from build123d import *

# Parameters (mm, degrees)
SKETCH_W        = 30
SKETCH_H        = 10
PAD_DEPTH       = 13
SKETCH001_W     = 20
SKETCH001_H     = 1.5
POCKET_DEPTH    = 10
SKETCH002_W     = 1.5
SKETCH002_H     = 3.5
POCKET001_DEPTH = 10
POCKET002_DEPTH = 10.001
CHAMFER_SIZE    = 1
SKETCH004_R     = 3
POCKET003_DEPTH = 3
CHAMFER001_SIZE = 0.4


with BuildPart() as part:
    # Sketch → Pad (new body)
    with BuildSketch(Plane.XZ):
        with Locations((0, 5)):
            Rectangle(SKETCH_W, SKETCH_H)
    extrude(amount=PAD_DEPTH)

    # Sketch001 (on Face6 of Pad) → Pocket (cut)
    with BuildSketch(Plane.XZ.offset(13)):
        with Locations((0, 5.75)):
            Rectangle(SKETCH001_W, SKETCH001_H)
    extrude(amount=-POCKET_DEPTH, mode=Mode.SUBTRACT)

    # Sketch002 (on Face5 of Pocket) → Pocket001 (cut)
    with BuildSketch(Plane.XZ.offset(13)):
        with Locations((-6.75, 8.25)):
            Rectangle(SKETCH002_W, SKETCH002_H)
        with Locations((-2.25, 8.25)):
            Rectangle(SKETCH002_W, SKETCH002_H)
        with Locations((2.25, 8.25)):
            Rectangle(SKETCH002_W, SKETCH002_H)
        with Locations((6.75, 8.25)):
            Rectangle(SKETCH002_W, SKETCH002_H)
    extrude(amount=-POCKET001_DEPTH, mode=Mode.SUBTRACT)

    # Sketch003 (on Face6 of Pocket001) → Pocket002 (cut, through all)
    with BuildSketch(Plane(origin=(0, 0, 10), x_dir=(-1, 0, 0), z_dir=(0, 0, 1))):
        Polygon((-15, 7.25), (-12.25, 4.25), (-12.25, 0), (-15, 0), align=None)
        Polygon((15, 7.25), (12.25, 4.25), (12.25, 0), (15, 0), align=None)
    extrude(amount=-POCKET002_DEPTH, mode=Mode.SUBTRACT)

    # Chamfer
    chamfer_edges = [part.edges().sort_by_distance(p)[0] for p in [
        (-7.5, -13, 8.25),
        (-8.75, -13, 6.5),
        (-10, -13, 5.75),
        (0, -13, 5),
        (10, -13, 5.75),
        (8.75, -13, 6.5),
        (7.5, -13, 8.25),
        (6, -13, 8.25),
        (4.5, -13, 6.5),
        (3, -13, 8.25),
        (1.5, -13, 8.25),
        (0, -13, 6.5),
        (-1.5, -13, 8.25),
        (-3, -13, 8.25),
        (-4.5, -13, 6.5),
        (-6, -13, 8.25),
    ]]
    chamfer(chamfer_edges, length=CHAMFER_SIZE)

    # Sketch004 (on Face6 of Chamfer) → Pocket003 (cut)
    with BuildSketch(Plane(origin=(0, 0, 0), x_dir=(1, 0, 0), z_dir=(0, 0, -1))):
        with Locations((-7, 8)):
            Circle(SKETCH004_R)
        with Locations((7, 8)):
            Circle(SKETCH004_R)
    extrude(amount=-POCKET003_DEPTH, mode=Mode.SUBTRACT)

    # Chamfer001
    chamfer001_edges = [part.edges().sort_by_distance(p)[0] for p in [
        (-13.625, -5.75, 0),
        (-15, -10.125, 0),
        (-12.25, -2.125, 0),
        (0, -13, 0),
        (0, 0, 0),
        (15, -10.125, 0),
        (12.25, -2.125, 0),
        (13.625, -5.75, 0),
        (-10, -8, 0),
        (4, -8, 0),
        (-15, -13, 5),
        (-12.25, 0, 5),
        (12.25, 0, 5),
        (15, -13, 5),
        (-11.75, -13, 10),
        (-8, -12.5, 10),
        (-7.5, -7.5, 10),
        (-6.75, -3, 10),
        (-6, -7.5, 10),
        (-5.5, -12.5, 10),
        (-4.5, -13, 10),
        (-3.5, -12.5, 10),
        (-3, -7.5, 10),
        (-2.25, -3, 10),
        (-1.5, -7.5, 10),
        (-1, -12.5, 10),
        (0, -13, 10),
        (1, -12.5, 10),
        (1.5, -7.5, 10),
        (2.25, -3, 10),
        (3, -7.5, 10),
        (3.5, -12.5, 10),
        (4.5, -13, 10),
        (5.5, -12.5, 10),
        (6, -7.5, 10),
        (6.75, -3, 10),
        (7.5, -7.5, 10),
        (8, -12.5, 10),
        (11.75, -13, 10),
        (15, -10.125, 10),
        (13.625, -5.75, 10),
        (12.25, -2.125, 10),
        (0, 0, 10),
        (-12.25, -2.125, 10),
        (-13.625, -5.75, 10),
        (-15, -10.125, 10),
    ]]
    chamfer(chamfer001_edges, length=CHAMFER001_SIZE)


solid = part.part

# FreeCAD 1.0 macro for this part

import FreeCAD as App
import Part
import Sketcher


def edges_at(feature, points):
    """Names of the edges that pass closest to the given points."""
    edges = feature.Shape.Edges
    near = lambda p: min(range(len(edges)), key=lambda i: edges[i].distToShape(Part.Vertex(*p))[0])
    return sorted({f"Edge{near(p) + 1}" for p in points})

doc = App.newDocument("Part")
params = doc.addObject("Spreadsheet::Sheet", "Params")
for row, (alias, value) in enumerate([
    ("sketch1_width", "30 mm"),
    ("sketch1_height", "10 mm"),
    ("pad1_length", "13 mm"),
    ("sketch2_width", "20 mm"),
    ("sketch2_height", "1.5 mm"),
    ("pocket1_length", "10 mm"),
    ("sketch3_width", "1.5 mm"),
    ("sketch3_height", "3.5 mm"),
    ("pocket2_length", "10 mm"),
    ("sketch4_width", "2.75 mm"),
    ("sketch4_height", "7.25 mm"),
    ("chamfer_size", "1 mm"),
    ("sketch5_diameter", "6 mm"),
    ("pocket4_length", "3 mm"),
    ("chamfer2_size", "0.4 mm"),
], start=1):
    params.set(f"A{row}", alias)
    params.set(f"B{row}", "=" + value)
    params.setAlias(f"B{row}", alias)

body = doc.addObject("PartDesign::Body", "Body")

sketch1 = body.newObject("Sketcher::SketchObject", "Sketch")
sketch1.AttachmentSupport = (doc.getObject("XZ_Plane"), [""])
sketch1.MapMode = "FlatFace"
sketch1.addGeometry([
    Part.LineSegment(App.Vector(-15, 10, 0), App.Vector(-15, 0, 0)),
    Part.LineSegment(App.Vector(-15, 0, 0), App.Vector(15, 0, 0)),
    Part.LineSegment(App.Vector(15, 0, 0), App.Vector(15, 10, 0)),
    Part.LineSegment(App.Vector(15, 10, 0), App.Vector(-15, 10, 0)),
], False)
sketch1.addConstraint([
    Sketcher.Constraint("Coincident", 0, 2, 1, 1),
    Sketcher.Constraint("Coincident", 1, 2, 2, 1),
    Sketcher.Constraint("Coincident", 2, 2, 3, 1),
    Sketcher.Constraint("Coincident", 3, 2, 0, 1),
    Sketcher.Constraint("Vertical", 0),
    Sketcher.Constraint("Horizontal", 1),
    Sketcher.Constraint("Vertical", 2),
    Sketcher.Constraint("Horizontal", 3),
    Sketcher.Constraint("Symmetric", 0, 2, 1, 2, -1, 1),
    Sketcher.Constraint("DistanceX", 1, 1, 1, 2, 30.0),
    Sketcher.Constraint("DistanceY", 0, 2, 0, 1, 10.0),
])
sketch1.setExpression("Constraints[9]", "Params.sketch1_width")
sketch1.setExpression("Constraints[10]", "Params.sketch1_height")
pad1 = body.newObject("PartDesign::Pad", "Pad")
pad1.Profile = sketch1
pad1.setExpression("Length", "Params.pad1_length")

sketch2 = body.newObject("Sketcher::SketchObject", "Sketch001")
sketch2.AttachmentSupport = (doc.getObject("XZ_Plane"), [""])
sketch2.MapMode = "FlatFace"
sketch2.AttachmentOffset = App.Placement(App.Vector(0, 0, 13), App.Rotation())
sketch2.addGeometry([
    Part.LineSegment(App.Vector(-10, 6.5, 0), App.Vector(-10, 5, 0)),
    Part.LineSegment(App.Vector(-10, 5, 0), App.Vector(10, 5, 0)),
    Part.LineSegment(App.Vector(10, 5, 0), App.Vector(10, 6.5, 0)),
    Part.LineSegment(App.Vector(10, 6.5, 0), App.Vector(-10, 6.5, 0)),
], False)
sketch2.addConstraint([
    Sketcher.Constraint("Coincident", 0, 2, 1, 1),
    Sketcher.Constraint("Coincident", 1, 2, 2, 1),
    Sketcher.Constraint("Coincident", 2, 2, 3, 1),
    Sketcher.Constraint("Coincident", 3, 2, 0, 1),
    Sketcher.Constraint("Vertical", 0),
    Sketcher.Constraint("Horizontal", 1),
    Sketcher.Constraint("Vertical", 2),
    Sketcher.Constraint("Horizontal", 3),
    Sketcher.Constraint("DistanceX", 1, 1, 1, 2, 20.0),
    Sketcher.Constraint("DistanceY", 0, 2, 0, 1, 1.5),
    Sketcher.Constraint("DistanceX", 0, 2, -1, 1, 10.0),
    Sketcher.Constraint("DistanceY", -1, 1, 0, 2, 5.0),
])
sketch2.setExpression("Constraints[8]", "Params.sketch2_width")
sketch2.setExpression("Constraints[9]", "Params.sketch2_height")
pocket1 = body.newObject("PartDesign::Pocket", "Pocket")
pocket1.Profile = sketch2
pocket1.setExpression("Length", "Params.pocket1_length")

sketch3 = body.newObject("Sketcher::SketchObject", "Sketch002")
sketch3.AttachmentSupport = (doc.getObject("XZ_Plane"), [""])
sketch3.MapMode = "FlatFace"
sketch3.AttachmentOffset = App.Placement(App.Vector(0, 0, 13), App.Rotation())
sketch3.addGeometry([
    Part.LineSegment(App.Vector(-7.5, 10, 0), App.Vector(-7.5, 6.5, 0)),
    Part.LineSegment(App.Vector(-7.5, 6.5, 0), App.Vector(-6, 6.5, 0)),
    Part.LineSegment(App.Vector(-6, 6.5, 0), App.Vector(-6, 10, 0)),
    Part.LineSegment(App.Vector(-6, 10, 0), App.Vector(-7.5, 10, 0)),
    Part.LineSegment(App.Vector(-3, 10, 0), App.Vector(-3, 6.5, 0)),
    Part.LineSegment(App.Vector(-3, 6.5, 0), App.Vector(-1.5, 6.5, 0)),
    Part.LineSegment(App.Vector(-1.5, 6.5, 0), App.Vector(-1.5, 10, 0)),
    Part.LineSegment(App.Vector(-1.5, 10, 0), App.Vector(-3, 10, 0)),
    Part.LineSegment(App.Vector(1.5, 10, 0), App.Vector(1.5, 6.5, 0)),
    Part.LineSegment(App.Vector(1.5, 6.5, 0), App.Vector(3, 6.5, 0)),
    Part.LineSegment(App.Vector(3, 6.5, 0), App.Vector(3, 10, 0)),
    Part.LineSegment(App.Vector(3, 10, 0), App.Vector(1.5, 10, 0)),
    Part.LineSegment(App.Vector(6, 10, 0), App.Vector(6, 6.5, 0)),
    Part.LineSegment(App.Vector(6, 6.5, 0), App.Vector(7.5, 6.5, 0)),
    Part.LineSegment(App.Vector(7.5, 6.5, 0), App.Vector(7.5, 10, 0)),
    Part.LineSegment(App.Vector(7.5, 10, 0), App.Vector(6, 10, 0)),
], False)
sketch3.addConstraint([
    Sketcher.Constraint("Coincident", 0, 2, 1, 1),
    Sketcher.Constraint("Coincident", 1, 2, 2, 1),
    Sketcher.Constraint("Coincident", 2, 2, 3, 1),
    Sketcher.Constraint("Coincident", 3, 2, 0, 1),
    Sketcher.Constraint("Coincident", 4, 2, 5, 1),
    Sketcher.Constraint("Coincident", 5, 2, 6, 1),
    Sketcher.Constraint("Coincident", 6, 2, 7, 1),
    Sketcher.Constraint("Coincident", 7, 2, 4, 1),
    Sketcher.Constraint("Coincident", 8, 2, 9, 1),
    Sketcher.Constraint("Coincident", 9, 2, 10, 1),
    Sketcher.Constraint("Coincident", 10, 2, 11, 1),
    Sketcher.Constraint("Coincident", 11, 2, 8, 1),
    Sketcher.Constraint("Coincident", 12, 2, 13, 1),
    Sketcher.Constraint("Coincident", 13, 2, 14, 1),
    Sketcher.Constraint("Coincident", 14, 2, 15, 1),
    Sketcher.Constraint("Coincident", 15, 2, 12, 1),
    Sketcher.Constraint("Vertical", 0),
    Sketcher.Constraint("Horizontal", 1),
    Sketcher.Constraint("Vertical", 2),
    Sketcher.Constraint("Horizontal", 3),
    Sketcher.Constraint("Vertical", 4),
    Sketcher.Constraint("Horizontal", 5),
    Sketcher.Constraint("Vertical", 6),
    Sketcher.Constraint("Horizontal", 7),
    Sketcher.Constraint("Vertical", 8),
    Sketcher.Constraint("Horizontal", 9),
    Sketcher.Constraint("Vertical", 10),
    Sketcher.Constraint("Horizontal", 11),
    Sketcher.Constraint("Vertical", 12),
    Sketcher.Constraint("Horizontal", 13),
    Sketcher.Constraint("Vertical", 14),
    Sketcher.Constraint("Horizontal", 15),
    Sketcher.Constraint("Symmetric", 5, 2, 8, 2, -2),
    Sketcher.Constraint("Symmetric", 7, 2, 10, 2, -2),
    Sketcher.Constraint("Symmetric", 1, 2, 12, 2, -2),
    Sketcher.Constraint("Symmetric", 3, 2, 14, 2, -2),
    Sketcher.Constraint("Horizontal", 1, 2, 4, 2),
    Sketcher.Constraint("Horizontal", 3, 2, 6, 2),
    Sketcher.Constraint("Equal", 3, 5),
    Sketcher.Constraint("DistanceX", 1, 1, 1, 2, 1.5),
    Sketcher.Constraint("DistanceY", 0, 2, 0, 1, 3.5),
    Sketcher.Constraint("DistanceX", 1, 2, -1, 1, 6.0),
    Sketcher.Constraint("DistanceY", -1, 1, 2, 2, 10.0),
    Sketcher.Constraint("DistanceX", 4, 2, -1, 1, 3.0),
])
sketch3.setExpression("Constraints[39]", "Params.sketch3_width")
sketch3.setExpression("Constraints[40]", "Params.sketch3_height")
pocket2 = body.newObject("PartDesign::Pocket", "Pocket001")
pocket2.Profile = sketch3
pocket2.setExpression("Length", "Params.pocket2_length")

sketch4 = body.newObject("Sketcher::SketchObject", "Sketch003")
sketch4.AttachmentSupport = (doc.getObject("XY_Plane"), [""])
sketch4.MapMode = "FlatFace"
sketch4.AttachmentOffset = App.Placement(App.Vector(0, 0, 10), App.Rotation())
sketch4.addGeometry([
    Part.LineSegment(App.Vector(12.2, -4.2, 0), App.Vector(15, -7.2, 0)),
    Part.LineSegment(App.Vector(15, -7.2, 0), App.Vector(15, 0, 0)),
    Part.LineSegment(App.Vector(15, 0, 0), App.Vector(12.2, 0, 0)),
    Part.LineSegment(App.Vector(12.2, 0, 0), App.Vector(12.2, -4.2, 0)),
    Part.LineSegment(App.Vector(-15, -7.2, 0), App.Vector(-12.2, -4.2, 0)),
    Part.LineSegment(App.Vector(-12.2, -4.2, 0), App.Vector(-12.2, 0, 0)),
    Part.LineSegment(App.Vector(-12.2, 0, 0), App.Vector(-15, 0, 0)),
    Part.LineSegment(App.Vector(-15, 0, 0), App.Vector(-15, -7.2, 0)),
], False)
sketch4.addConstraint([
    Sketcher.Constraint("Coincident", 0, 2, 1, 1),
    Sketcher.Constraint("Coincident", 1, 2, 2, 1),
    Sketcher.Constraint("Coincident", 2, 2, 3, 1),
    Sketcher.Constraint("Coincident", 3, 2, 0, 1),
    Sketcher.Constraint("Coincident", 4, 2, 5, 1),
    Sketcher.Constraint("Coincident", 5, 2, 6, 1),
    Sketcher.Constraint("Coincident", 6, 2, 7, 1),
    Sketcher.Constraint("Coincident", 7, 2, 4, 1),
    Sketcher.Constraint("Vertical", 1),
    Sketcher.Constraint("Horizontal", 2),
    Sketcher.Constraint("Vertical", 3),
    Sketcher.Constraint("Vertical", 5),
    Sketcher.Constraint("Horizontal", 6),
    Sketcher.Constraint("Vertical", 7),
    Sketcher.Constraint("Symmetric", 2, 2, 5, 2, -1, 1),
    Sketcher.Constraint("Symmetric", 1, 2, 6, 2, -2),
    Sketcher.Constraint("Horizontal", 3, 2, 4, 2),
    Sketcher.Constraint("Horizontal", 0, 2, 7, 2),
    Sketcher.Constraint("DistanceX", -1, 1, 0, 2, 15.0),
    Sketcher.Constraint("DistanceY", 0, 2, 3, 2, 3.0),
    Sketcher.Constraint("DistanceX", 2, 2, 2, 1, 2.75),
    Sketcher.Constraint("DistanceY", 1, 1, 1, 2, 7.25),
])
sketch4.setExpression("Constraints[20]", "Params.sketch4_width")
sketch4.setExpression("Constraints[21]", "Params.sketch4_height")
pocket3 = body.newObject("PartDesign::Pocket", "Pocket002")
pocket3.Profile = sketch4
pocket3.Type = "ThroughAll"
doc.recompute()

chamfer = body.newObject("PartDesign::Chamfer", "Chamfer")
chamfer.Base = (pocket3, edges_at(pocket3, [
    (-7.5, -13, 8.25),
    (-8.75, -13, 6.5),
    (-10, -13, 5.75),
    (0, -13, 5),
    (10, -13, 5.75),
    (8.75, -13, 6.5),
    (7.5, -13, 8.25),
    (6, -13, 8.25),
    (4.5, -13, 6.5),
    (3, -13, 8.25),
    (1.5, -13, 8.25),
    (0, -13, 6.5),
    (-1.5, -13, 8.25),
    (-3, -13, 8.25),
    (-4.5, -13, 6.5),
    (-6, -13, 8.25),
]))
chamfer.setExpression("Size", "Params.chamfer_size")

sketch5 = body.newObject("Sketcher::SketchObject", "Sketch004")
sketch5.AttachmentSupport = (doc.getObject("XY_Plane"), [""])
sketch5.MapMode = "FlatFace"
sketch5.addGeometry([
    Part.Circle(App.Vector(-7, -8, 0), App.Vector(0, 0, 1), 3),
    Part.Circle(App.Vector(7, -8, 0), App.Vector(0, 0, 1), 3),
], False)
sketch5.addConstraint([
    Sketcher.Constraint("Equal", 0, 1),
    Sketcher.Constraint("Symmetric", 0, 3, 1, 3, -2),
    Sketcher.Constraint("Diameter", 0, 6.0),
    Sketcher.Constraint("DistanceX", 0, 3, -1, 1, 7.0),
    Sketcher.Constraint("DistanceY", 0, 3, -1, 1, 8.0),
])
sketch5.setExpression("Constraints[2]", "Params.sketch5_diameter")
pocket4 = body.newObject("PartDesign::Pocket", "Pocket003")
pocket4.Profile = sketch5
pocket4.setExpression("Length", "Params.pocket4_length")
pocket4.Reversed = True
doc.recompute()

chamfer2 = body.newObject("PartDesign::Chamfer", "Chamfer001")
chamfer2.Base = (pocket4, edges_at(pocket4, [
    (-13.625, -5.75, 0),
    (-15, -10.125, 0),
    (-12.25, -2.125, 0),
    (0, -13, 0),
    (0, 0, 0),
    (15, -10.125, 0),
    (12.25, -2.125, 0),
    (13.625, -5.75, 0),
    (-10, -8, 0),
    (4, -8, 0),
    (-15, -13, 5),
    (-12.25, 0, 5),
    (12.25, 0, 5),
    (15, -13, 5),
    (-11.75, -13, 10),
    (-8, -12.5, 10),
    (-7.5, -7.5, 10),
    (-6.75, -3, 10),
    (-6, -7.5, 10),
    (-5.5, -12.5, 10),
    (-4.5, -13, 10),
    (-3.5, -12.5, 10),
    (-3, -7.5, 10),
    (-2.25, -3, 10),
    (-1.5, -7.5, 10),
    (-1, -12.5, 10),
    (0, -13, 10),
    (1, -12.5, 10),
    (1.5, -7.5, 10),
    (2.25, -3, 10),
    (3, -7.5, 10),
    (3.5, -12.5, 10),
    (4.5, -13, 10),
    (5.5, -12.5, 10),
    (6, -7.5, 10),
    (6.75, -3, 10),
    (7.5, -7.5, 10),
    (8, -12.5, 10),
    (11.75, -13, 10),
    (15, -10.125, 10),
    (13.625, -5.75, 10),
    (12.25, -2.125, 10),
    (0, 0, 10),
    (-12.25, -2.125, 10),
    (-13.625, -5.75, 10),
    (-15, -10.125, 10),
]))
chamfer2.setExpression("Size", "Params.chamfer2_size")

doc.recompute()
